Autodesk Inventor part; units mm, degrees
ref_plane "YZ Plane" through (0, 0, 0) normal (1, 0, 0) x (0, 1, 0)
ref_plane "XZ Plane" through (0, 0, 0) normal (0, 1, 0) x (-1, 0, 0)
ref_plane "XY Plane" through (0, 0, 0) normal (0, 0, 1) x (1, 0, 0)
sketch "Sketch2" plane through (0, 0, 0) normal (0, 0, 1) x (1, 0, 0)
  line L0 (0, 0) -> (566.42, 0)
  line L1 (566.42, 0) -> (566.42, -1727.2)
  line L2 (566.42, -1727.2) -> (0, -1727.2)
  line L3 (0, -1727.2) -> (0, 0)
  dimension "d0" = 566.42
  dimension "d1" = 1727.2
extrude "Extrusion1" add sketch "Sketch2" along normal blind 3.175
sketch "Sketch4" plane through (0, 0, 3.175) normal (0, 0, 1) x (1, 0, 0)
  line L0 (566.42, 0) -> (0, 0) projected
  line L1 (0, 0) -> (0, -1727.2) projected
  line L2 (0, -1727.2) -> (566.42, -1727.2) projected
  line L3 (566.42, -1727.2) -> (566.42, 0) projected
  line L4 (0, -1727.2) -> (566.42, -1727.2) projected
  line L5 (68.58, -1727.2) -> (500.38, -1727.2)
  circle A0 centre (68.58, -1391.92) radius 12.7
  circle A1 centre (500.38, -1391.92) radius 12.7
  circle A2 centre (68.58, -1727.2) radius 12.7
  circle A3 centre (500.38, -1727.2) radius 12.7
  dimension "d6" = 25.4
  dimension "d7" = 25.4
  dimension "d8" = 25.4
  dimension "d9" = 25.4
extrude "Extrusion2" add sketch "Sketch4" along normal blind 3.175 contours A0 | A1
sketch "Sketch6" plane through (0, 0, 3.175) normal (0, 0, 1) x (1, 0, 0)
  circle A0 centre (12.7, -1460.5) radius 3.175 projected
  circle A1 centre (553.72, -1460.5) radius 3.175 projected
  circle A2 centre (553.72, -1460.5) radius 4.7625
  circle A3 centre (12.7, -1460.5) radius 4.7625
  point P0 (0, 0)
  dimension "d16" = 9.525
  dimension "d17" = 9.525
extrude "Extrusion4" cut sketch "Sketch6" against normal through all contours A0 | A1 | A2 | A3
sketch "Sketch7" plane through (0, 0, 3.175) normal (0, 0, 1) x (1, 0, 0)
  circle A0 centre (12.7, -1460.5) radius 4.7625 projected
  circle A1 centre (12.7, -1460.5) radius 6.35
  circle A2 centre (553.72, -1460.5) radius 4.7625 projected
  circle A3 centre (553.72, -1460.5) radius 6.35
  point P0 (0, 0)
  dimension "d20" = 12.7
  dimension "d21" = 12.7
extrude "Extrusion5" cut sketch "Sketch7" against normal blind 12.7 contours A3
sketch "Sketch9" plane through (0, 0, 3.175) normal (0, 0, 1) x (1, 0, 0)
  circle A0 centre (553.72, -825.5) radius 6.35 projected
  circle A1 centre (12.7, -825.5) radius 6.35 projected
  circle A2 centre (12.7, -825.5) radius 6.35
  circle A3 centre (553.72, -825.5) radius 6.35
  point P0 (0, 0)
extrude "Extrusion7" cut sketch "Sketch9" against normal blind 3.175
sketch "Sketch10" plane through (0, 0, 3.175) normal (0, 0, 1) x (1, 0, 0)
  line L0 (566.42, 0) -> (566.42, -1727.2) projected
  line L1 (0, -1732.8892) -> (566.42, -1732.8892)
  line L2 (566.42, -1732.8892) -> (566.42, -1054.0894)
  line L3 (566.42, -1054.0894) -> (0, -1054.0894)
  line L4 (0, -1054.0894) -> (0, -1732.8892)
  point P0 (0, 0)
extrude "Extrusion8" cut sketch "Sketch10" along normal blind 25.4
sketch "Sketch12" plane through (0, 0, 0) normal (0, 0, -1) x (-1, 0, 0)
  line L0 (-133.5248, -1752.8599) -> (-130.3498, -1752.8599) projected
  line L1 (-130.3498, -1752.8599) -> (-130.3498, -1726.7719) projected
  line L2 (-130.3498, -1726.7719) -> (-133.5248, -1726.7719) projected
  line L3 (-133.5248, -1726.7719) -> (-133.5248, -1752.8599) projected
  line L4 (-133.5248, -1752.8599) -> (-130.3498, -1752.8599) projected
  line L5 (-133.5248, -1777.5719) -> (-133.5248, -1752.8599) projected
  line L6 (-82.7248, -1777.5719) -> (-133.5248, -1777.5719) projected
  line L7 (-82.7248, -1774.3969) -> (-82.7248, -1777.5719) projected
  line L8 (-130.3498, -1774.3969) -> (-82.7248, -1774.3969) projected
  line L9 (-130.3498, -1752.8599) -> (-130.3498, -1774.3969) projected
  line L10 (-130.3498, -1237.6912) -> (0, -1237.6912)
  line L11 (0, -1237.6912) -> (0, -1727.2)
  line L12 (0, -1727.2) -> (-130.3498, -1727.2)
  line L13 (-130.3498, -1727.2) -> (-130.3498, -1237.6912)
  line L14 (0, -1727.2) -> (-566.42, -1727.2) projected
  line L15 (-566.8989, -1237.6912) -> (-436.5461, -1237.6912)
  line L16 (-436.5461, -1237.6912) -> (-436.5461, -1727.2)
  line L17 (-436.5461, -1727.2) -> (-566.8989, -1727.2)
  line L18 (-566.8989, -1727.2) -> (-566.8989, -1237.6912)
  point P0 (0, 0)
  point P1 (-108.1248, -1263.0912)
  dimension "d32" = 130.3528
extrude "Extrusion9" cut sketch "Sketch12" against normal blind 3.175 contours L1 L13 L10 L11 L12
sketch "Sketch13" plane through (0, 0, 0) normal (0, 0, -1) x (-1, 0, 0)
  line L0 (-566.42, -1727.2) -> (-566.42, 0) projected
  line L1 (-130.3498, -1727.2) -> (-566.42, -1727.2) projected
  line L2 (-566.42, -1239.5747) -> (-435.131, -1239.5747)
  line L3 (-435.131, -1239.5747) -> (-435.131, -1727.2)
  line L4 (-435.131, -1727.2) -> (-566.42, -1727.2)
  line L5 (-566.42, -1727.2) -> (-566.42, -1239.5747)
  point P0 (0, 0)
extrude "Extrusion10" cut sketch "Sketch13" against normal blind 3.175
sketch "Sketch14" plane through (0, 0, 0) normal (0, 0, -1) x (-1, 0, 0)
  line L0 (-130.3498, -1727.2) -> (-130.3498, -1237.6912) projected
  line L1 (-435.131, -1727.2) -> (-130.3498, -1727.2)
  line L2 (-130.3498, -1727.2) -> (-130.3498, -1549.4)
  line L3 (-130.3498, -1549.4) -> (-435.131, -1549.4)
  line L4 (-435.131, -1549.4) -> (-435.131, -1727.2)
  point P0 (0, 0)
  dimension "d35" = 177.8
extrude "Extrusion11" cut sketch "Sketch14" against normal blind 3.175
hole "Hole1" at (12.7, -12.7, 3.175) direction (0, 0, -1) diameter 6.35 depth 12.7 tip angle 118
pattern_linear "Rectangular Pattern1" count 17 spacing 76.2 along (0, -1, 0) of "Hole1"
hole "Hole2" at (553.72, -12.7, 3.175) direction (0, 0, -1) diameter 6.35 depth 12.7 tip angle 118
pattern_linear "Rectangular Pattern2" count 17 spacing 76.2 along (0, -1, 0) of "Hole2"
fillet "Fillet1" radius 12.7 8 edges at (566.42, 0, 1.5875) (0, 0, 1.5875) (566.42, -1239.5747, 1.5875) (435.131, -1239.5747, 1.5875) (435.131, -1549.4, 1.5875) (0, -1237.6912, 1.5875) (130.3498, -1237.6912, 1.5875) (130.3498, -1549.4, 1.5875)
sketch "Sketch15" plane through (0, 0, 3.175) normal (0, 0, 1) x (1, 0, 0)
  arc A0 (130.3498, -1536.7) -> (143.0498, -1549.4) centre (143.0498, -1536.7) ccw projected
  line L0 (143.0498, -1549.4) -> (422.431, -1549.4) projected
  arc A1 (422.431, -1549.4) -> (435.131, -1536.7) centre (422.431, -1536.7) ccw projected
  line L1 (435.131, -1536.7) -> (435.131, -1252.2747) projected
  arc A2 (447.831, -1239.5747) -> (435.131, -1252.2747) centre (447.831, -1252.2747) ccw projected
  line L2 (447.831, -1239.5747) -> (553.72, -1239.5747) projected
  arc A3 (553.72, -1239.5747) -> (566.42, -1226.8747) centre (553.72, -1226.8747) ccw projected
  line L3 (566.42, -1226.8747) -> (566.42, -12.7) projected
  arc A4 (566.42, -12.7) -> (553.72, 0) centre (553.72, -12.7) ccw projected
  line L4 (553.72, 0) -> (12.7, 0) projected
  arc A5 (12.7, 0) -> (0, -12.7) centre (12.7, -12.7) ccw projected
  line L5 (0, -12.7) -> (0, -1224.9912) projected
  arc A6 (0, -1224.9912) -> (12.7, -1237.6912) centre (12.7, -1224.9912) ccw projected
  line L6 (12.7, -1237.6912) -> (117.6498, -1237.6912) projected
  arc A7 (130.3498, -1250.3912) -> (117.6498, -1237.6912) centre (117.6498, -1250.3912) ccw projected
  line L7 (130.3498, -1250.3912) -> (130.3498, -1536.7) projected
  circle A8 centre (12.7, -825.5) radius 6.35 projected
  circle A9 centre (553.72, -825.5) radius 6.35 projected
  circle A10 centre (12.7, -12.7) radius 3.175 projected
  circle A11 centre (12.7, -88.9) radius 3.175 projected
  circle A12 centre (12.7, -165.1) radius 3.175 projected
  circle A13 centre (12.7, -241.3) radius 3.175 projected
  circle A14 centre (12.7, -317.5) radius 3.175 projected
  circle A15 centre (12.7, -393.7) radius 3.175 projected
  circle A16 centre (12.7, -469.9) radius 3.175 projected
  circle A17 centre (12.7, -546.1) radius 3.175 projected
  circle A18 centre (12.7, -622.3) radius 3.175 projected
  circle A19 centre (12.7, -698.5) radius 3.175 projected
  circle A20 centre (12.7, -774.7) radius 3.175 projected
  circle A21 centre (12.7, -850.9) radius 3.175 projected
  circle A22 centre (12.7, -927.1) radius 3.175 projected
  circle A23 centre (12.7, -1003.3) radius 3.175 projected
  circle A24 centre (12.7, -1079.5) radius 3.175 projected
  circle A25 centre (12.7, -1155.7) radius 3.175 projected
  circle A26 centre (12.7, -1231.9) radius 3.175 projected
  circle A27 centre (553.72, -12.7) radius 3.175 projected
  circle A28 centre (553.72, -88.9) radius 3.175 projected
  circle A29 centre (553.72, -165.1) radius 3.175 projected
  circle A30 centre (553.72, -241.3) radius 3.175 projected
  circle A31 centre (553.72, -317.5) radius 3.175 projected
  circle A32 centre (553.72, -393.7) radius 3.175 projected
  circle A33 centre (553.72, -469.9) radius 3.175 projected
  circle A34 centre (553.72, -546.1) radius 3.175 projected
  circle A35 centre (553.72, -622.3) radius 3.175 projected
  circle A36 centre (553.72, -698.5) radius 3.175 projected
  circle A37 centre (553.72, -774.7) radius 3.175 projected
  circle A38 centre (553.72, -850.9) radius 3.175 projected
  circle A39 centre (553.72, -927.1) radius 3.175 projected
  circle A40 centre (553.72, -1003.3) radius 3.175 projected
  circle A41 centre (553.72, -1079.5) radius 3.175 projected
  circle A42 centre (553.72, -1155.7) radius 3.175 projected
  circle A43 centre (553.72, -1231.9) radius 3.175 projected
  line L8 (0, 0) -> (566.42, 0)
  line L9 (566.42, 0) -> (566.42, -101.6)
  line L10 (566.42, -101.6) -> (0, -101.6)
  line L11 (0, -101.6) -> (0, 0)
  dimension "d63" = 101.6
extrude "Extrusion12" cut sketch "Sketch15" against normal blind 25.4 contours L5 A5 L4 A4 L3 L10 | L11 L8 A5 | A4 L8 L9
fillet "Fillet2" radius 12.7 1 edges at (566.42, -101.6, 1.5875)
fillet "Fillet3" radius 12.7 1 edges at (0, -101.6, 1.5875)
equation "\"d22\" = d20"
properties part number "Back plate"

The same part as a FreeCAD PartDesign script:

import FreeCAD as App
import Part
import Sketcher

V = App.Vector
Q = App.Units.Quantity


def edges_at(feature, points):
    """Names of the edges that pass closest to the given points."""
    edges = feature.Shape.Edges
    near = lambda p: min(range(len(edges)), key=lambda i: edges[i].distToShape(Part.Vertex(*p))[0])
    return sorted({f"Edge{near(p) + 1}" for p in points})


def add_polygon(sketch, points):
    """Adds a closed chain of lines whose ends are joined by coincident constraints."""
    first, n = sketch.GeometryCount, len(points)
    for a, b in zip(points, points[1:] + points[:1]):
        sketch.addGeometry(Part.LineSegment(App.Vector(*a, 0), App.Vector(*b, 0)), False)
    for i in range(n):
        sketch.addConstraint(Sketcher.Constraint("Coincident", first + i, 2, first + (i + 1) % n, 1))

doc = App.newDocument("Part")
body = doc.addObject("PartDesign::Body", "Body")

# Sketch on XY plane
sketch1 = body.newObject("Sketcher::SketchObject", "Sketch")
sketch1.AttachmentSupport = (doc.getObject("XY_Plane"), [""])
sketch1.MapMode = "FlatFace"
add_polygon(sketch1, [(566, 0), (0, 0), (0, -1727), (566, -1727)])  # lines 0-3
sketch1.addConstraint([
    Sketcher.Constraint("Horizontal", 0),
    Sketcher.Constraint("Vertical", 1),
    Sketcher.Constraint("Horizontal", 2),
    Sketcher.Constraint("Vertical", 3),
    Sketcher.Constraint("Coincident", 0, 2, -1, 1),
    Sketcher.Constraint("DistanceY", 1, 2, 1, 1, Q("68 in")),
    Sketcher.Constraint("DistanceX", 0, 2, 0, 1, Q("22.3 in")),
])
pad1 = body.newObject("PartDesign::Pad", "Pad")
pad1.Profile = sketch1
pad1.Length = Q("0.125 in")

# Sketch on XY plane
sketch2 = body.newObject("Sketcher::SketchObject", "Sketch001")
sketch2.AttachmentSupport = (doc.getObject("XY_Plane"), [""])
sketch2.MapMode = "FlatFace"
sketch2.AttachmentOffset = App.Placement(V(0, 0, 0.125 * 25.4), App.Rotation())
sketch2.addGeometry([
    Part.Circle(V(69, -1392, 0), V(0, 0, 1), 13),
    Part.Circle(V(500, -1392, 0), V(0, 0, 1), 13),
], False)
sketch2.addConstraint([
    Sketcher.Constraint("Equal", 0, 1),
    Sketcher.Constraint("Horizontal", 0, 3, 1, 3),
    Sketcher.Constraint("Diameter", 0, Q("1 in")),
    Sketcher.Constraint("DistanceX", 0, 3, 1, 3, Q("17 in")),
    Sketcher.Constraint("DistanceX", -1, 1, 0, 3, Q("2.7 in")),
    Sketcher.Constraint("DistanceY", 0, 3, -1, 1, Q("54.8 in")),
])
pad2 = body.newObject("PartDesign::Pad", "Pad001")
pad2.Profile = sketch2
pad2.Length = Q("0.125 in")

# Sketch on XY plane
sketch3 = body.newObject("Sketcher::SketchObject", "Sketch002")
sketch3.AttachmentSupport = (doc.getObject("XY_Plane"), [""])
sketch3.MapMode = "FlatFace"
sketch3.AttachmentOffset = App.Placement(V(0, 0, 0.125 * 25.4), App.Rotation())
sketch3.addGeometry([
    Part.Circle(V(12.7, -1460.5, 0), V(0, 0, 1), 4.8),
    Part.Circle(V(553.7, -1460.5, 0), V(0, 0, 1), 4.8),
], False)
sketch3.addConstraint([
    Sketcher.Constraint("Equal", 0, 1),
    Sketcher.Constraint("Horizontal", 0, 3, 1, 3),
    Sketcher.Constraint("Diameter", 0, Q("0.375 in")),
    Sketcher.Constraint("DistanceX", -1, 1, 0, 3, Q("0.5 in")),
    Sketcher.Constraint("DistanceY", 0, 3, -1, 1, Q("57.5 in")),
    Sketcher.Constraint("DistanceX", -1, 1, 1, 3, Q("21.8 in")),
])
pocket1 = body.newObject("PartDesign::Pocket", "Pocket")
pocket1.Profile = sketch3
pocket1.Type = "ThroughAll"

# Sketch on XY plane
sketch4 = body.newObject("Sketcher::SketchObject", "Sketch003")
sketch4.AttachmentSupport = (doc.getObject("XY_Plane"), [""])
sketch4.MapMode = "FlatFace"
sketch4.AttachmentOffset = App.Placement(V(0, 0, 0.125 * 25.4), App.Rotation())
sketch4.addGeometry([
    Part.Circle(V(553.7, -1460.5, 0), V(0, 0, 1), 6.3),
    Part.Circle(V(553.7, -1460.5, 0), V(0, 0, 1), 4.8),
], False)
sketch4.addConstraint([
    Sketcher.Constraint("Coincident", 1, 3, 0, 3),
    Sketcher.Constraint("Diameter", 0, Q("0.5 in")),
    Sketcher.Constraint("Diameter", 1, Q("0.375 in")),
    Sketcher.Constraint("DistanceX", -1, 1, 0, 3, Q("21.8 in")),
    Sketcher.Constraint("DistanceY", 0, 3, -1, 1, Q("57.5 in")),
])
pocket2 = body.newObject("PartDesign::Pocket", "Pocket001")
pocket2.Profile = sketch4
pocket2.Length = Q("0.5 in")

# Sketch on XY plane
sketch5 = body.newObject("Sketcher::SketchObject", "Sketch004")
sketch5.AttachmentSupport = (doc.getObject("XY_Plane"), [""])
sketch5.MapMode = "FlatFace"
sketch5.AttachmentOffset = App.Placement(V(0, 0, 0.125 * 25.4), App.Rotation())
sketch5.addGeometry([
    Part.Circle(V(554, -826, 0), V(0, 0, 1), 6),
    Part.Circle(V(13, -826, 0), V(0, 0, 1), 6),
], False)
sketch5.addConstraint([
    Sketcher.Constraint("Equal", 0, 1),
    Sketcher.Constraint("Horizontal", 0, 3, 1, 3),
    Sketcher.Constraint("Diameter", 0, Q("0.5 in")),
    Sketcher.Constraint("DistanceX", -1, 1, 0, 3, Q("21.8 in")),
    Sketcher.Constraint("DistanceY", 0, 3, -1, 1, Q("32.5 in")),
    Sketcher.Constraint("DistanceX", -1, 1, 1, 3, Q("0.5 in")),
])
pocket3 = body.newObject("PartDesign::Pocket", "Pocket002")
pocket3.Profile = sketch5
pocket3.Length = Q("0.125 in")

# Sketch on XY plane
sketch6 = body.newObject("Sketcher::SketchObject", "Sketch005")
sketch6.AttachmentSupport = (doc.getObject("XY_Plane"), [""])
sketch6.MapMode = "FlatFace"
sketch6.AttachmentOffset = App.Placement(V(0, 0, 0.125 * 25.4), App.Rotation())
add_polygon(sketch6, [(566, -1733), (566, -1054), (0, -1054), (0, -1733)])  # lines 0-3
sketch6.addConstraint([
    Sketcher.Constraint("Vertical", 0),
    Sketcher.Constraint("Horizontal", 1),
    Sketcher.Constraint("Vertical", 2),
    Sketcher.Constraint("Horizontal", 3),
    Sketcher.Constraint("PointOnObject", 1, 2, -2),
    Sketcher.Constraint("DistanceX", 1, 2, 1, 1, Q("22.3 in")),
    Sketcher.Constraint("DistanceY", 0, 1, 0, 2, Q("26.7244 in")),
    Sketcher.Constraint("DistanceY", 0, 2, -1, 1, Q("1054.0894 mm")),
])
pocket4 = body.newObject("PartDesign::Pocket", "Pocket003")
pocket4.Profile = sketch6
pocket4.Length = Q("1 in")
pocket4.Reversed = True

# Sketch on XY plane
sketch7 = body.newObject("Sketcher::SketchObject", "Sketch006")
sketch7.AttachmentSupport = (doc.getObject("XY_Plane"), [""])
sketch7.MapMode = "FlatFace"
add_polygon(sketch7, [(130, -1238), (130, -1727), (0, -1727), (0, -1238)])  # lines 0-3
sketch7.addConstraint([
    Sketcher.Constraint("Vertical", 0),
    Sketcher.Constraint("Horizontal", 1),
    Sketcher.Constraint("Vertical", 2),
    Sketcher.Constraint("Horizontal", 3),
    Sketcher.Constraint("PointOnObject", 1, 2, -2),
    Sketcher.Constraint("DistanceY", 0, 2, -1, 1, Q("68 in")),
    Sketcher.Constraint("DistanceY", 0, 2, 0, 1, Q("19.272 in")),
    Sketcher.Constraint("DistanceX", 1, 2, 1, 1, Q("130.3498 mm")),
])
pocket5 = body.newObject("PartDesign::Pocket", "Pocket004")
pocket5.Profile = sketch7
pocket5.Length = Q("0.125 in")
pocket5.Reversed = True

# Sketch on XY plane
sketch8 = body.newObject("Sketcher::SketchObject", "Sketch007")
sketch8.AttachmentSupport = (doc.getObject("XY_Plane"), [""])
sketch8.MapMode = "FlatFace"
add_polygon(sketch8, [(566, -1240), (566, -1727), (435, -1727), (435, -1240)])  # lines 0-3
sketch8.addConstraint([
    Sketcher.Constraint("Vertical", 0),
    Sketcher.Constraint("Horizontal", 1),
    Sketcher.Constraint("Vertical", 2),
    Sketcher.Constraint("Horizontal", 3),
    Sketcher.Constraint("DistanceY", 0, 2, -1, 1, Q("68 in")),
    Sketcher.Constraint("DistanceX", -1, 1, 0, 2, Q("22.3 in")),
    Sketcher.Constraint("DistanceX", 1, 2, 1, 1, Q("131.289 mm")),
    Sketcher.Constraint("DistanceY", 0, 2, 0, 1, Q("487.6253 mm")),
])
pocket6 = body.newObject("PartDesign::Pocket", "Pocket005")
pocket6.Profile = sketch8
pocket6.Length = Q("0.125 in")
pocket6.Reversed = True

# Sketch on XY plane
sketch9 = body.newObject("Sketcher::SketchObject", "Sketch008")
sketch9.AttachmentSupport = (doc.getObject("XY_Plane"), [""])
sketch9.MapMode = "FlatFace"
add_polygon(sketch9, [(435, -1727), (130, -1727), (130, -1549), (435, -1549)])  # lines 0-3
sketch9.addConstraint([
    Sketcher.Constraint("Horizontal", 0),
    Sketcher.Constraint("Vertical", 1),
    Sketcher.Constraint("Horizontal", 2),
    Sketcher.Constraint("Vertical", 3),
    Sketcher.Constraint("DistanceY", 1, 1, 1, 2, Q("7 in")),
    Sketcher.Constraint("DistanceY", 0, 2, -1, 1, Q("68 in")),
    Sketcher.Constraint("DistanceX", 0, 2, 0, 1, Q("304.7812 mm")),
    Sketcher.Constraint("DistanceX", -1, 1, 0, 2, Q("130.3498 mm")),
])
pocket7 = body.newObject("PartDesign::Pocket", "Pocket006")
pocket7.Profile = sketch9
pocket7.Length = Q("0.125 in")
pocket7.Reversed = True

# Sketch on XY plane
sketch10 = body.newObject("Sketcher::SketchObject", "Sketch009")
sketch10.AttachmentSupport = (doc.getObject("XY_Plane"), [""])
sketch10.MapMode = "FlatFace"
sketch10.AttachmentOffset = App.Placement(V(0, 0, 0.125 * 25.4), App.Rotation())
sketch10.addGeometry(Part.Circle(V(12.7, -12.7, 0), V(0, 0, 1), 3.2), False)
sketch10.addConstraint([
    Sketcher.Constraint("Diameter", 0, Q("0.25 in")),
    Sketcher.Constraint("DistanceX", -1, 1, 0, 3, Q("0.5 in")),
    Sketcher.Constraint("DistanceY", 0, 3, -1, 1, Q("0.5 in")),
])
doc.recompute()
hole = body.newObject("PartDesign::Hole", "Hole")
hole.Profile = sketch10
hole.ThreadType = "None"
hole.Diameter = Q("0.25 in")
hole.DepthType = "Dimension"
hole.Depth = Q("0.5 in")
hole.DrillPoint = "Angled"
hole.DrillPointAngle = 118
doc.recompute()

linearpattern = body.newObject("PartDesign::LinearPattern", "LinearPattern")
linearpattern.Originals = [hole]
linearpattern.Direction = (doc.getObject("Y_Axis"), [""])
linearpattern.Mode = "offset"
linearpattern.Offset = Q("3 in")
linearpattern.Occurrences = 17
linearpattern.Reversed = True
body.Tip = linearpattern

# Sketch on XY plane
sketch11 = body.newObject("Sketcher::SketchObject", "Sketch010")
sketch11.AttachmentSupport = (doc.getObject("XY_Plane"), [""])
sketch11.MapMode = "FlatFace"
sketch11.AttachmentOffset = App.Placement(V(0, 0, 0.125 * 25.4), App.Rotation())
sketch11.addGeometry(Part.Circle(V(553.7, -12.7, 0), V(0, 0, 1), 3.2), False)
sketch11.addConstraint([
    Sketcher.Constraint("Diameter", 0, Q("0.25 in")),
    Sketcher.Constraint("DistanceX", -1, 1, 0, 3, Q("21.8 in")),
    Sketcher.Constraint("DistanceY", 0, 3, -1, 1, Q("0.5 in")),
])
doc.recompute()
hole2 = body.newObject("PartDesign::Hole", "Hole001")
hole2.Profile = sketch11
hole2.ThreadType = "None"
hole2.Diameter = Q("0.25 in")
hole2.DepthType = "Dimension"
hole2.Depth = Q("0.5 in")
hole2.DrillPoint = "Angled"
hole2.DrillPointAngle = 118
doc.recompute()

linearpattern2 = body.newObject("PartDesign::LinearPattern", "LinearPattern001")
linearpattern2.Originals = [hole2]
linearpattern2.Direction = (doc.getObject("Y_Axis"), [""])
linearpattern2.Mode = "offset"
linearpattern2.Offset = Q("3 in")
linearpattern2.Occurrences = 17
linearpattern2.Reversed = True
body.Tip = linearpattern2
doc.recompute()

fillet = body.newObject("PartDesign::Fillet", "Fillet")
fillet.Base = (linearpattern2, edges_at(linearpattern2, [
    (566.42, 0, 1.587),
    (0, 0, 1.587),
    (566.42, -1239.575, 1.587),
    (435.131, -1239.575, 1.587),
    (435.131, -1549.4, 1.587),
    (0, -1237.691, 1.587),
    (130.35, -1237.691, 1.587),
    (130.35, -1549.4, 1.587),
]))
fillet.Radius = Q("0.5 in")

# Sketch on XY plane
sketch12 = body.newObject("Sketcher::SketchObject", "Sketch011")
sketch12.AttachmentSupport = (doc.getObject("XY_Plane"), [""])
sketch12.MapMode = "FlatFace"
sketch12.AttachmentOffset = App.Placement(V(0, 0, 0.125 * 25.4), App.Rotation())
add_polygon(sketch12, [(0, -101.6), (566.4, -101.6), (566.4, 0), (0, 0)])  # lines 0-3
sketch12.addGeometry(Part.Circle(V(12.7, -88.9, 0), V(0, 0, 1), 3.2), False)  # 4
sketch12.addGeometry(Part.Circle(V(12.7, -12.7, 0), V(0, 0, 1), 3.2), False)  # 5
sketch12.addGeometry(Part.Circle(V(553.7, -88.9, 0), V(0, 0, 1), 3.2), False)  # 6
sketch12.addGeometry(Part.Circle(V(553.7, -12.7, 0), V(0, 0, 1), 3.2), False)  # 7
sketch12.addConstraint([
    Sketcher.Constraint("Horizontal", 0),
    Sketcher.Constraint("Vertical", 1),
    Sketcher.Constraint("Horizontal", 2),
    Sketcher.Constraint("Vertical", 3),
    Sketcher.Constraint("Coincident", 2, 2, -1, 1),
    Sketcher.Constraint("Equal", 4, 5),
    Sketcher.Constraint("Equal", 5, 6),
    Sketcher.Constraint("Equal", 6, 7),
    Sketcher.Constraint("Horizontal", 4, 3, 6, 3),
    Sketcher.Constraint("Horizontal", 5, 3, 7, 3),
    Sketcher.Constraint("Vertical", 4, 3, 5, 3),
    Sketcher.Constraint("Vertical", 6, 3, 7, 3),
    Sketcher.Constraint("DistanceY", 1, 1, 1, 2, Q("4 in")),
    Sketcher.Constraint("Diameter", 4, Q("0.25 in")),
    Sketcher.Constraint("DistanceX", 0, 1, 0, 2, Q("22.3 in")),
    Sketcher.Constraint("DistanceY", 4, 3, 5, 3, Q("3 in")),
    Sketcher.Constraint("DistanceX", -1, 1, 4, 3, Q("0.5 in")),
    Sketcher.Constraint("DistanceY", 4, 3, -1, 1, Q("3.5 in")),
    Sketcher.Constraint("DistanceX", -1, 1, 6, 3, Q("21.8 in")),
])
pocket8 = body.newObject("PartDesign::Pocket", "Pocket007")
pocket8.Profile = sketch12
pocket8.Length = Q("1 in")
doc.recompute()

fillet2 = body.newObject("PartDesign::Fillet", "Fillet001")
fillet2.Base = (pocket8, edges_at(pocket8, [(566.42, -101.6, 1.587)]))
fillet2.Radius = Q("0.5 in")
doc.recompute()

fillet3 = body.newObject("PartDesign::Fillet", "Fillet002")
fillet3.Base = (fillet2, edges_at(fillet2, [(0, -101.6, 1.587)]))
fillet3.Radius = Q("0.5 in")

doc.recompute()
